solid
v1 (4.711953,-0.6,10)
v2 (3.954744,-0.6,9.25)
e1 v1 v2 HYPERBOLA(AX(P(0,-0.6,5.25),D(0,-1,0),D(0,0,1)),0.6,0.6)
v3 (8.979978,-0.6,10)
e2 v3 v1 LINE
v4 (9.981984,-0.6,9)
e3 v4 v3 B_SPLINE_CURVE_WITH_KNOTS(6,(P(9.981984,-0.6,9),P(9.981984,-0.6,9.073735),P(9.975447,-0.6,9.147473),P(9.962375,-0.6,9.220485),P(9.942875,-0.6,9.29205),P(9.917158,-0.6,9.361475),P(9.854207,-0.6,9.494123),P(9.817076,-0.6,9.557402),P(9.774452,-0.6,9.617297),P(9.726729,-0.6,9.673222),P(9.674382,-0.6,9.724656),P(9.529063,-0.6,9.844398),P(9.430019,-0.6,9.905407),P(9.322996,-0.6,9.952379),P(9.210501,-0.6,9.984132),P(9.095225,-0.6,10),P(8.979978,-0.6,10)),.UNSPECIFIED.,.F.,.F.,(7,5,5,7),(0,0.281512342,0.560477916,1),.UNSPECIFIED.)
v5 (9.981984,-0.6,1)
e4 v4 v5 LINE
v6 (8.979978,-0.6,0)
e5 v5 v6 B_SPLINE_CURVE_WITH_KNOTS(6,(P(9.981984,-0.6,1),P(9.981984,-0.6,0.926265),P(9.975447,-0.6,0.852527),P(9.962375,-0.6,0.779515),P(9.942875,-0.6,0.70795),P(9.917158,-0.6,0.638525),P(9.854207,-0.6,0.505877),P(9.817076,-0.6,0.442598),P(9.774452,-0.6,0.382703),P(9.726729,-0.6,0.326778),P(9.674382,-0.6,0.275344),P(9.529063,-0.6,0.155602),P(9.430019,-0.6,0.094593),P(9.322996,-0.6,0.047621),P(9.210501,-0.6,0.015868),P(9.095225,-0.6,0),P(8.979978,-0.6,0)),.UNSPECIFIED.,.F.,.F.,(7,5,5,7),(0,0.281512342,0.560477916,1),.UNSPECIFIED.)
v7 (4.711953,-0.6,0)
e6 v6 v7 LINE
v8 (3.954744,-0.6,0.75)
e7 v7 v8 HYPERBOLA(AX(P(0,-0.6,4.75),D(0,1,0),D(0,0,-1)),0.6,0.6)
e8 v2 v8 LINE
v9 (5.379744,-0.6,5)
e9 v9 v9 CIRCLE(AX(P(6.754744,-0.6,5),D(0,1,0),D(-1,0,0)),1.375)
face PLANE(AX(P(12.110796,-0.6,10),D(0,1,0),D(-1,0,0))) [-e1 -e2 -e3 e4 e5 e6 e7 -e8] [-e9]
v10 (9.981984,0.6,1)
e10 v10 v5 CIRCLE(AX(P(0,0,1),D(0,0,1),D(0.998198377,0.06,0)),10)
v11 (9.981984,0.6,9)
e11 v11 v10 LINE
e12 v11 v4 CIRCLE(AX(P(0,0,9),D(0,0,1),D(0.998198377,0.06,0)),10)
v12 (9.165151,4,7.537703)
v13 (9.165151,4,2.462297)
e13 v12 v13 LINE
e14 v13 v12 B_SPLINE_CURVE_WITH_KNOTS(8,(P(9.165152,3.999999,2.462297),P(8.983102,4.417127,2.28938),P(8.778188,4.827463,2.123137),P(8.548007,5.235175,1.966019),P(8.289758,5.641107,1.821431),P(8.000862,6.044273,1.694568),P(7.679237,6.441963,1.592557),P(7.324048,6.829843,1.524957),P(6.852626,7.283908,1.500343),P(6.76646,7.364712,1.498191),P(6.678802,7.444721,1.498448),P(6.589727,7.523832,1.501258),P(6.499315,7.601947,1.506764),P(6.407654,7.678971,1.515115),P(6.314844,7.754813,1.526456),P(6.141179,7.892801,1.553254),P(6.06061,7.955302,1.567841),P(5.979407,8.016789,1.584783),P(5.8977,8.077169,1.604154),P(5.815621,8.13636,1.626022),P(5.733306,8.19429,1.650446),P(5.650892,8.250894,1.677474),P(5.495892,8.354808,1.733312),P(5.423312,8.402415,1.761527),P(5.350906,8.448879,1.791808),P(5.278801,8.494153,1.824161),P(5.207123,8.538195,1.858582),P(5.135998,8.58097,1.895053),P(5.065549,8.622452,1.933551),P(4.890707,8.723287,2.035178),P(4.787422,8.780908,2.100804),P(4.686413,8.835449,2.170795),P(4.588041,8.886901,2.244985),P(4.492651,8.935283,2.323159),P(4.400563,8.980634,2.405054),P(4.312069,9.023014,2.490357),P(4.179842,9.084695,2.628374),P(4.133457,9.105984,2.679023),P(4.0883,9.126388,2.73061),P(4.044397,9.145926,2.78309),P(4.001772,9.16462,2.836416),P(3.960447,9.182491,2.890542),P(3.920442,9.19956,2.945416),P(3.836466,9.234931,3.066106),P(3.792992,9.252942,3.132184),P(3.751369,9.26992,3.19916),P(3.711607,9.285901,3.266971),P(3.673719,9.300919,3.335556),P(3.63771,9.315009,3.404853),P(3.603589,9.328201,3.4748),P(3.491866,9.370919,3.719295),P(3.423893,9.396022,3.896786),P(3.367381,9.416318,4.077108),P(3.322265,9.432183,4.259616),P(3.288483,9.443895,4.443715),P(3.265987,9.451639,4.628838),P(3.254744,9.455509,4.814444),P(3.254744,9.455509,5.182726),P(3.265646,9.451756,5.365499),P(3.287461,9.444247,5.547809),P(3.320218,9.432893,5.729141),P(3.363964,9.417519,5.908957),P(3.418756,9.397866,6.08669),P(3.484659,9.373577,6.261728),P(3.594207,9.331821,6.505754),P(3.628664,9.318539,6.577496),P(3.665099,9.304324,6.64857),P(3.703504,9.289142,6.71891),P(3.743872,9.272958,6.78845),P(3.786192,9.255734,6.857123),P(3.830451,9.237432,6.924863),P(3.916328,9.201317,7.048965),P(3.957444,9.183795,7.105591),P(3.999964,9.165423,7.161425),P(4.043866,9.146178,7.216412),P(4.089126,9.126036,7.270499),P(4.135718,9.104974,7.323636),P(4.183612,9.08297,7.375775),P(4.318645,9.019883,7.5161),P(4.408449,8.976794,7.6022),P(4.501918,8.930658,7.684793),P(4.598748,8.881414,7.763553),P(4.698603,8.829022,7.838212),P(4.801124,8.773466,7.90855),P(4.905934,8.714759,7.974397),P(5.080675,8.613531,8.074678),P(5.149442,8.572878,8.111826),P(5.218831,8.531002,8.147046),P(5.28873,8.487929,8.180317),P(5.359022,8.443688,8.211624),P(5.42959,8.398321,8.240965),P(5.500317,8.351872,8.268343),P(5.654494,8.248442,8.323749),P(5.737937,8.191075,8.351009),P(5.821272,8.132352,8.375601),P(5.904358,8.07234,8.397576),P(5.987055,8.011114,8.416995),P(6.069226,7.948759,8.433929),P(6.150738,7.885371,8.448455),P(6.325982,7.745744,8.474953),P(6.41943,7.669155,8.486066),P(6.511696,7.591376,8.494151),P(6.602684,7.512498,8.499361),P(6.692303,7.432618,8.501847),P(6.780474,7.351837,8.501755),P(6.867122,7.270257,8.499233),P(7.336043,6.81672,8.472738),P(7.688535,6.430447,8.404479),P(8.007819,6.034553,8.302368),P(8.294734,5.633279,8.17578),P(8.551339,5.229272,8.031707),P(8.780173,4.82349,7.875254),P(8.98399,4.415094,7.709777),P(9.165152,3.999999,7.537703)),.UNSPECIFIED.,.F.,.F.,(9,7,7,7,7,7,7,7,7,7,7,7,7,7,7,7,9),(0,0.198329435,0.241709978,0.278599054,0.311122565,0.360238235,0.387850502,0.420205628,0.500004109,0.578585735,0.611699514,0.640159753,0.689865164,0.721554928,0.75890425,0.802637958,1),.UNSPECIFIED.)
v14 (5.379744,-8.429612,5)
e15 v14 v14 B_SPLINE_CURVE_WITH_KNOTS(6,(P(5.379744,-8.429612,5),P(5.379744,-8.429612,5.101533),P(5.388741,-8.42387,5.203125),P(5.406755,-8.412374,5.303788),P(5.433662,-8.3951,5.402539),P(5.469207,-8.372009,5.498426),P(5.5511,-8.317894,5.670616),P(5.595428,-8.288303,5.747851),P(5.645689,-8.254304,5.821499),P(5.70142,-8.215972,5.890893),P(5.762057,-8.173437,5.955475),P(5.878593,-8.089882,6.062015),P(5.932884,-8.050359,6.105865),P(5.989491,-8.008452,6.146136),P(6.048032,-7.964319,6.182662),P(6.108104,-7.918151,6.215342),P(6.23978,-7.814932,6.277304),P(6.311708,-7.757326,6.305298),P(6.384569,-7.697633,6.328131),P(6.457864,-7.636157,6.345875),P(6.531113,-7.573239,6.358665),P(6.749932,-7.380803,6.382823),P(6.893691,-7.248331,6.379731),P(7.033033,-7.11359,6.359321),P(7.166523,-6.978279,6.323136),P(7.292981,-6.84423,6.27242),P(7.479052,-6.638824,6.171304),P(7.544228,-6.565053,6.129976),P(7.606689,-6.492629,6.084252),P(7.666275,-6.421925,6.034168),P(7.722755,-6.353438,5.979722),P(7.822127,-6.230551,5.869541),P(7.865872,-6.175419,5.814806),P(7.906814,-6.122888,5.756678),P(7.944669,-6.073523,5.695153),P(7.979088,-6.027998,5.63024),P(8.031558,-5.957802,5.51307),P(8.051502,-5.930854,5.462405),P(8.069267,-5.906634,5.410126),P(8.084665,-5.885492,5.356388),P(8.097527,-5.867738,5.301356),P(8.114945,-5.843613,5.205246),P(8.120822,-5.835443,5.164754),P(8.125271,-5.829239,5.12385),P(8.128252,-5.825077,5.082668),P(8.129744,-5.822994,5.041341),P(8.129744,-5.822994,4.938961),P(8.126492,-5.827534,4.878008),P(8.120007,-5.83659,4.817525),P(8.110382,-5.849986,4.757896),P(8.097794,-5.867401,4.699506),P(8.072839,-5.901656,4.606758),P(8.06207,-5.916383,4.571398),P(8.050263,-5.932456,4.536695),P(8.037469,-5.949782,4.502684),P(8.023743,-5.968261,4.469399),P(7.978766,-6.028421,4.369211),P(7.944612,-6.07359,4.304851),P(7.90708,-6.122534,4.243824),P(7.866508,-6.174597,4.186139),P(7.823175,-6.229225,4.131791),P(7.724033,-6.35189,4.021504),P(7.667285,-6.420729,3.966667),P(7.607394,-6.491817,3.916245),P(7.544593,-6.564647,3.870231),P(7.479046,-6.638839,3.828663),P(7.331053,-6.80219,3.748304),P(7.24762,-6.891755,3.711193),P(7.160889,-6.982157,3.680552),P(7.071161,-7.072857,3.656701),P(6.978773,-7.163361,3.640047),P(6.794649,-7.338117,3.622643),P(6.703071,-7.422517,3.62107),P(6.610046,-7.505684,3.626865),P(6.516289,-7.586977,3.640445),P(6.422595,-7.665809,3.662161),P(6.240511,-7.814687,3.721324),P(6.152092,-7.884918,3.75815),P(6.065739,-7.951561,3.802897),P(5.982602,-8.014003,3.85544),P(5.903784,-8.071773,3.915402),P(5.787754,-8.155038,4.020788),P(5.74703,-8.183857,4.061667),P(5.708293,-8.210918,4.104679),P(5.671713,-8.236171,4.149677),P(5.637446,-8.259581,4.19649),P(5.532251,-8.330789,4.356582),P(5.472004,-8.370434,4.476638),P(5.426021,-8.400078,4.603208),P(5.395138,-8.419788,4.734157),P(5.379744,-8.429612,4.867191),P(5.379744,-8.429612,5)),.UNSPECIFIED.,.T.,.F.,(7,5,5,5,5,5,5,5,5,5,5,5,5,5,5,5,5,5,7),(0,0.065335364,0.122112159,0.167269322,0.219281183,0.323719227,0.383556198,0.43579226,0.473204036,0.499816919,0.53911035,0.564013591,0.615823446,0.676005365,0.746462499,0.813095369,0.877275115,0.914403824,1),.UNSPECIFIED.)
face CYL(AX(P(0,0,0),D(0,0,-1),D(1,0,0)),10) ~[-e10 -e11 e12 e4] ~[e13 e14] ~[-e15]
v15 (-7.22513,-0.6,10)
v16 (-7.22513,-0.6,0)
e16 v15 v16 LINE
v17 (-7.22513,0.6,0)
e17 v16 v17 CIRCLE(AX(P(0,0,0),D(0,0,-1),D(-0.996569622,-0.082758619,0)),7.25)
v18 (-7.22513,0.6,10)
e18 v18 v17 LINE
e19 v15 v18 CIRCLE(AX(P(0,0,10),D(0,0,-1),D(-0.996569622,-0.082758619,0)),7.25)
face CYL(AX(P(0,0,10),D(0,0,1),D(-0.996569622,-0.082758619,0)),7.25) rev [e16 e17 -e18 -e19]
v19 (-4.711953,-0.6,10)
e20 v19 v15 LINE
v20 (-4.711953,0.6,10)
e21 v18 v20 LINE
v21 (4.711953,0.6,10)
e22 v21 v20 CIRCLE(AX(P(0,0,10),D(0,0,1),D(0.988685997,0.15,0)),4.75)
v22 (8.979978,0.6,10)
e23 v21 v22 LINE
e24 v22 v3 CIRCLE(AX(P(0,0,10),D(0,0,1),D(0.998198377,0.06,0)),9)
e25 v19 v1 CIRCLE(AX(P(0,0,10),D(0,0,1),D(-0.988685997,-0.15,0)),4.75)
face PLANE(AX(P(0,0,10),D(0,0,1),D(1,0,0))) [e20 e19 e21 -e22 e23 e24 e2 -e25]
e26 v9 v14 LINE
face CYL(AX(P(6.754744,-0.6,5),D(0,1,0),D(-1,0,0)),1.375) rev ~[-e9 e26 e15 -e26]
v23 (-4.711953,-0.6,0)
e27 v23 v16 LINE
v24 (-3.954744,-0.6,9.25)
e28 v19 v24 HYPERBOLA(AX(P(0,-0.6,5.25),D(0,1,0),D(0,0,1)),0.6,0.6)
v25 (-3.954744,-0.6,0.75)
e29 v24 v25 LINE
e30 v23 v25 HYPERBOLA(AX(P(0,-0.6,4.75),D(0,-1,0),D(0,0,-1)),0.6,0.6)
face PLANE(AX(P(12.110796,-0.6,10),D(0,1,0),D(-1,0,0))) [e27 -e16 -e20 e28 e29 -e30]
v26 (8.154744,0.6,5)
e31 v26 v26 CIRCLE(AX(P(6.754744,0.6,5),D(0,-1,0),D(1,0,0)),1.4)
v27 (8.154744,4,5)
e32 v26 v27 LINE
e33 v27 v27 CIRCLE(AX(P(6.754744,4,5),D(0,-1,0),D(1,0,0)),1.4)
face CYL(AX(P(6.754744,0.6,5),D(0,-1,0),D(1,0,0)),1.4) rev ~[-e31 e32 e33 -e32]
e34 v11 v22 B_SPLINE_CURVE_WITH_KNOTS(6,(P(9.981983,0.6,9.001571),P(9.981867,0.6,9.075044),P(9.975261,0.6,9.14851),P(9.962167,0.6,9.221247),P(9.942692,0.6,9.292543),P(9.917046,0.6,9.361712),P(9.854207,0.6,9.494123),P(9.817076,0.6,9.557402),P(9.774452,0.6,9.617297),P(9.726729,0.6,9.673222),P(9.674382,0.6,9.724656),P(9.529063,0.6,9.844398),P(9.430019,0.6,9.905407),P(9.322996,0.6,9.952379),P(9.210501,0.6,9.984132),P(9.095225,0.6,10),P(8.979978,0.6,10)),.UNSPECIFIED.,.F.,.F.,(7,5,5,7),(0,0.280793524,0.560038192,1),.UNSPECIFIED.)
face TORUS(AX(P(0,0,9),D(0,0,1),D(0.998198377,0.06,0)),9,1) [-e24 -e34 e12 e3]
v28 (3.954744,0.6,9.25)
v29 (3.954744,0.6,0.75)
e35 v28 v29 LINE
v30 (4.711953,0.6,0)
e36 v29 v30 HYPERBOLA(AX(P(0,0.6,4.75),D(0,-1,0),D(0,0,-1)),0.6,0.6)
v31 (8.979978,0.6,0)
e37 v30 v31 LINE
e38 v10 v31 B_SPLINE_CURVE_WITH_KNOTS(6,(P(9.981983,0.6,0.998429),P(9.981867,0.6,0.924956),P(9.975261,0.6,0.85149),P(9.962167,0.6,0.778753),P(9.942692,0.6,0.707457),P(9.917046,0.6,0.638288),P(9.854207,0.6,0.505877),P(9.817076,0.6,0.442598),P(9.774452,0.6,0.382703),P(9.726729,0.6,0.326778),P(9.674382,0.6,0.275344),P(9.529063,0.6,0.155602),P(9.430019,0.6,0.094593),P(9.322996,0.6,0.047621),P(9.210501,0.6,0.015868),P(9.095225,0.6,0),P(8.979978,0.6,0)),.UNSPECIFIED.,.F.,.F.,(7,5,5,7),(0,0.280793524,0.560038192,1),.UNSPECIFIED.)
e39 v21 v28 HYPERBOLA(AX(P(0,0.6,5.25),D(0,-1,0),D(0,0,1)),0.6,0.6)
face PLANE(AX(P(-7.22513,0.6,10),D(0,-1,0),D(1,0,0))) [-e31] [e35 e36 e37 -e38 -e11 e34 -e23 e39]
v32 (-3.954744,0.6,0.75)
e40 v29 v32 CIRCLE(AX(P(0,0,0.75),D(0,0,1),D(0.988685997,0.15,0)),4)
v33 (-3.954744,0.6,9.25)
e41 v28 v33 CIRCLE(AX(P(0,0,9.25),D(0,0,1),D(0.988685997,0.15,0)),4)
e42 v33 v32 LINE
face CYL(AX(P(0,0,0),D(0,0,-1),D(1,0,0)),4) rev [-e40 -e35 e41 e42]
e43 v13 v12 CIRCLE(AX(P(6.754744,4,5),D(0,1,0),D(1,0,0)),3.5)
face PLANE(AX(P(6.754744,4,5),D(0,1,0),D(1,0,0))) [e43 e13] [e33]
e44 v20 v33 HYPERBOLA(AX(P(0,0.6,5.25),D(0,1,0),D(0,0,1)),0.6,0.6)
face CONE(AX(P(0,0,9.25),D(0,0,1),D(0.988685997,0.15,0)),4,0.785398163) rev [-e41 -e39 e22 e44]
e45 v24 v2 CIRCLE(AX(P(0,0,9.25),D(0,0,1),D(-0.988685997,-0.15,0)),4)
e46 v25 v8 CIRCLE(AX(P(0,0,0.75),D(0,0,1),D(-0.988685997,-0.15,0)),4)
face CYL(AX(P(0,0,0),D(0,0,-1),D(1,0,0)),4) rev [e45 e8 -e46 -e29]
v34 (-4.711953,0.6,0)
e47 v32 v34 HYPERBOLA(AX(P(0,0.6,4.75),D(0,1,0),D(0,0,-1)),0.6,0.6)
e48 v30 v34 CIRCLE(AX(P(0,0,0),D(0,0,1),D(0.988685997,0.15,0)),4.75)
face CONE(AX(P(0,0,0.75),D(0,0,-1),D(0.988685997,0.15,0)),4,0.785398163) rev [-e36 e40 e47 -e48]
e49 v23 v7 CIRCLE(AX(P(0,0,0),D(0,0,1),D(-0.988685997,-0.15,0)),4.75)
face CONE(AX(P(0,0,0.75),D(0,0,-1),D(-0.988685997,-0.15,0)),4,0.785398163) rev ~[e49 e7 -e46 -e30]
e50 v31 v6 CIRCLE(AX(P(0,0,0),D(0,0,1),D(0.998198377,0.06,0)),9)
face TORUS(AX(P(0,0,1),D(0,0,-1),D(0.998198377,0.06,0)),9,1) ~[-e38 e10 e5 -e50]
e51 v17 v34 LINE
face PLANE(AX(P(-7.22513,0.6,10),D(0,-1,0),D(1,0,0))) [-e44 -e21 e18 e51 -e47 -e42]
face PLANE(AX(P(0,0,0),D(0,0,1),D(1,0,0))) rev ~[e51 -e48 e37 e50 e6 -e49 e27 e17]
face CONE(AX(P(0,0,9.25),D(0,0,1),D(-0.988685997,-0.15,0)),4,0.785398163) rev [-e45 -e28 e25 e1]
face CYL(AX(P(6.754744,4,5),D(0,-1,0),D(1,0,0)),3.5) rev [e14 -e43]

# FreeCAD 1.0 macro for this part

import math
import FreeCAD as App
import Part
import Sketcher

V = App.Vector
Q = App.Units.Quantity


def edges_at(feature, points):
    """Names of the edges that pass closest to the given points."""
    edges = feature.Shape.Edges
    near = lambda p: min(range(len(edges)), key=lambda i: edges[i].distToShape(Part.Vertex(*p))[0])
    return sorted({f"Edge{near(p) + 1}" for p in points})

doc = App.newDocument("Part")
body = doc.addObject("PartDesign::Body", "Body")

sketch1 = doc.addObject("Sketcher::SketchObject", "Sketch")
body.addObject(sketch1)
sketch1.AttachmentSupport = (doc.XY_Plane, [""])
sketch1.MapMode = "FlatFace"
sketch1.addGeometry([
    Part.Circle(V(0, 0, 0), V(0, 0, 1), 10),
    Part.Circle(V(0, 0, 0), V(0, 0, 1), 4),
], False)
sketch1.addConstraint([
    Sketcher.Constraint("Coincident", 0, 3, -1, 1),
    Sketcher.Constraint("Coincident", 1, 3, -1, 1),
    Sketcher.Constraint("Diameter", 0, Q("20 mm")),
    Sketcher.Constraint("Diameter", 1, Q("8 mm")),
])
pad1 = doc.addObject("PartDesign::Pad", "Pad")
body.addObject(pad1)
pad1.Profile = sketch1
pad1.Length = 10

sketch2 = doc.addObject("Sketcher::SketchObject", "Sketch001")
body.addObject(sketch2)
sketch2.AttachmentSupport = (doc.XY_Plane, [""])
sketch2.MapMode = "FlatFace"
sketch2.AttachmentOffset = App.Placement(V(0, 0, 10), App.Rotation())
sketch2.addGeometry([
    Part.LineSegment(V(12.110796, 0.6, 0), V(-7.22513, 0.6, 0)),
    Part.ArcOfCircle(Part.Circle(V(0, 0, 0), V(0, 0, 1), 7.25), math.radians(175.252851), math.radians(184.747149)),
    Part.LineSegment(V(-7.22513, -0.6, 0), V(12.110796, -0.6, 0)),
    Part.LineSegment(V(12.110796, -0.6, 0), V(12.110796, 0.6, 0)),
], False)
sketch2.addConstraint([
    Sketcher.Constraint("Coincident", 0, 2, 1, 1),
    Sketcher.Constraint("Coincident", 1, 2, 2, 1),
    Sketcher.Constraint("Coincident", 2, 2, 3, 1),
    Sketcher.Constraint("Coincident", 3, 2, 0, 1),
    Sketcher.Constraint("Horizontal", 0),
    Sketcher.Constraint("Horizontal", 2),
    Sketcher.Constraint("Vertical", 3),
    Sketcher.Constraint("Coincident", 1, 3, -1, 1),
    Sketcher.Constraint("Vertical", 0, 2, 1, 2),
    Sketcher.Constraint("Radius", 1, Q("7.25 mm")),
    Sketcher.Constraint("DistanceY", 3, 1, 3, 2, Q("1.2 mm")),
    Sketcher.Constraint("DistanceX", 0, 2, 0, 1, Q("19.335926 mm")),
])
pocket1 = doc.addObject("PartDesign::Pocket", "Pocket")
body.addObject(pocket1)
pocket1.Profile = sketch2
pocket1.Length = 10

sketch3 = doc.addObject("Sketcher::SketchObject", "Sketch002")
body.addObject(sketch3)
sketch3.AttachmentSupport = (doc.XZ_Plane, [""])
sketch3.MapMode = "FlatFace"
sketch3.AttachmentOffset = App.Placement(V(0, 0, 0.6), App.Rotation())
sketch3.addGeometry(Part.Circle(V(6.754744, 5, 0), V(0, 0, 1), 1.375), False)
sketch3.addConstraint([
    Sketcher.Constraint("Diameter", 0, Q("2.75 mm")),
    Sketcher.Constraint("DistanceY", -1, 1, 0, 3, Q("5 mm")),
    Sketcher.Constraint("DistanceX", -1, 1, 0, 3, Q("6.754744 mm")),
])
pocket2 = doc.addObject("PartDesign::Pocket", "Pocket001")
body.addObject(pocket2)
pocket2.Profile = sketch3
pocket2.Length = 10
pocket2.Reversed = True

sketch4 = doc.addObject("Sketcher::SketchObject", "Sketch003")
body.addObject(sketch4)
sketch4.AttachmentSupport = (doc.XZ_Plane, [""])
sketch4.MapMode = "FlatFace"
sketch4.AttachmentOffset = App.Placement(V(0, 0, -0.6), App.Rotation())
sketch4.addGeometry(Part.Circle(V(6.754744, 5, 0), V(0, 0, 1), 1.4), False)
sketch4.addConstraint([
    Sketcher.Constraint("Diameter", 0, Q("2.8 mm")),
    Sketcher.Constraint("DistanceY", -1, 1, 0, 3, Q("5 mm")),
    Sketcher.Constraint("DistanceX", -1, 1, 0, 3, Q("6.754744 mm")),
])
pocket3 = doc.addObject("PartDesign::Pocket", "Pocket002")
body.addObject(pocket3)
pocket3.Profile = sketch4
pocket3.Length = 10

sketch5 = doc.addObject("Sketcher::SketchObject", "Sketch004")
body.addObject(sketch5)
sketch5.AttachmentSupport = (doc.XZ_Plane, [""])
sketch5.MapMode = "FlatFace"
sketch5.AttachmentOffset = App.Placement(V(0, 0, -4), App.Rotation())
sketch5.addGeometry(Part.Circle(V(6.754744, 5, 0), V(0, 0, 1), 3.5), False)
sketch5.addConstraint([
    Sketcher.Constraint("Diameter", 0, Q("7 mm")),
    Sketcher.Constraint("DistanceY", -1, 1, 0, 3, Q("5 mm")),
    Sketcher.Constraint("DistanceX", -1, 1, 0, 3, Q("6.754744 mm")),
])
pocket4 = doc.addObject("PartDesign::Pocket", "Pocket003")
body.addObject(pocket4)
pocket4.Profile = sketch5
pocket4.Length = 10
doc.recompute()

fillet = doc.addObject("PartDesign::Fillet", "Fillet")
body.addObject(fillet)
fillet.Base = (pocket4, edges_at(pocket4, [(-10, 0, 0), (-10, 0, 10)]))
fillet.Radius = 1
doc.recompute()

chamfer = doc.addObject("PartDesign::Chamfer", "Chamfer")
body.addObject(chamfer)
chamfer.Base = (fillet, edges_at(fillet, [
    (0, -4, 10),
    (0, -4, 0),
    (0, 4, 0),
    (0, 4, 10),
]))
chamfer.Size = 0.75

doc.recompute()
